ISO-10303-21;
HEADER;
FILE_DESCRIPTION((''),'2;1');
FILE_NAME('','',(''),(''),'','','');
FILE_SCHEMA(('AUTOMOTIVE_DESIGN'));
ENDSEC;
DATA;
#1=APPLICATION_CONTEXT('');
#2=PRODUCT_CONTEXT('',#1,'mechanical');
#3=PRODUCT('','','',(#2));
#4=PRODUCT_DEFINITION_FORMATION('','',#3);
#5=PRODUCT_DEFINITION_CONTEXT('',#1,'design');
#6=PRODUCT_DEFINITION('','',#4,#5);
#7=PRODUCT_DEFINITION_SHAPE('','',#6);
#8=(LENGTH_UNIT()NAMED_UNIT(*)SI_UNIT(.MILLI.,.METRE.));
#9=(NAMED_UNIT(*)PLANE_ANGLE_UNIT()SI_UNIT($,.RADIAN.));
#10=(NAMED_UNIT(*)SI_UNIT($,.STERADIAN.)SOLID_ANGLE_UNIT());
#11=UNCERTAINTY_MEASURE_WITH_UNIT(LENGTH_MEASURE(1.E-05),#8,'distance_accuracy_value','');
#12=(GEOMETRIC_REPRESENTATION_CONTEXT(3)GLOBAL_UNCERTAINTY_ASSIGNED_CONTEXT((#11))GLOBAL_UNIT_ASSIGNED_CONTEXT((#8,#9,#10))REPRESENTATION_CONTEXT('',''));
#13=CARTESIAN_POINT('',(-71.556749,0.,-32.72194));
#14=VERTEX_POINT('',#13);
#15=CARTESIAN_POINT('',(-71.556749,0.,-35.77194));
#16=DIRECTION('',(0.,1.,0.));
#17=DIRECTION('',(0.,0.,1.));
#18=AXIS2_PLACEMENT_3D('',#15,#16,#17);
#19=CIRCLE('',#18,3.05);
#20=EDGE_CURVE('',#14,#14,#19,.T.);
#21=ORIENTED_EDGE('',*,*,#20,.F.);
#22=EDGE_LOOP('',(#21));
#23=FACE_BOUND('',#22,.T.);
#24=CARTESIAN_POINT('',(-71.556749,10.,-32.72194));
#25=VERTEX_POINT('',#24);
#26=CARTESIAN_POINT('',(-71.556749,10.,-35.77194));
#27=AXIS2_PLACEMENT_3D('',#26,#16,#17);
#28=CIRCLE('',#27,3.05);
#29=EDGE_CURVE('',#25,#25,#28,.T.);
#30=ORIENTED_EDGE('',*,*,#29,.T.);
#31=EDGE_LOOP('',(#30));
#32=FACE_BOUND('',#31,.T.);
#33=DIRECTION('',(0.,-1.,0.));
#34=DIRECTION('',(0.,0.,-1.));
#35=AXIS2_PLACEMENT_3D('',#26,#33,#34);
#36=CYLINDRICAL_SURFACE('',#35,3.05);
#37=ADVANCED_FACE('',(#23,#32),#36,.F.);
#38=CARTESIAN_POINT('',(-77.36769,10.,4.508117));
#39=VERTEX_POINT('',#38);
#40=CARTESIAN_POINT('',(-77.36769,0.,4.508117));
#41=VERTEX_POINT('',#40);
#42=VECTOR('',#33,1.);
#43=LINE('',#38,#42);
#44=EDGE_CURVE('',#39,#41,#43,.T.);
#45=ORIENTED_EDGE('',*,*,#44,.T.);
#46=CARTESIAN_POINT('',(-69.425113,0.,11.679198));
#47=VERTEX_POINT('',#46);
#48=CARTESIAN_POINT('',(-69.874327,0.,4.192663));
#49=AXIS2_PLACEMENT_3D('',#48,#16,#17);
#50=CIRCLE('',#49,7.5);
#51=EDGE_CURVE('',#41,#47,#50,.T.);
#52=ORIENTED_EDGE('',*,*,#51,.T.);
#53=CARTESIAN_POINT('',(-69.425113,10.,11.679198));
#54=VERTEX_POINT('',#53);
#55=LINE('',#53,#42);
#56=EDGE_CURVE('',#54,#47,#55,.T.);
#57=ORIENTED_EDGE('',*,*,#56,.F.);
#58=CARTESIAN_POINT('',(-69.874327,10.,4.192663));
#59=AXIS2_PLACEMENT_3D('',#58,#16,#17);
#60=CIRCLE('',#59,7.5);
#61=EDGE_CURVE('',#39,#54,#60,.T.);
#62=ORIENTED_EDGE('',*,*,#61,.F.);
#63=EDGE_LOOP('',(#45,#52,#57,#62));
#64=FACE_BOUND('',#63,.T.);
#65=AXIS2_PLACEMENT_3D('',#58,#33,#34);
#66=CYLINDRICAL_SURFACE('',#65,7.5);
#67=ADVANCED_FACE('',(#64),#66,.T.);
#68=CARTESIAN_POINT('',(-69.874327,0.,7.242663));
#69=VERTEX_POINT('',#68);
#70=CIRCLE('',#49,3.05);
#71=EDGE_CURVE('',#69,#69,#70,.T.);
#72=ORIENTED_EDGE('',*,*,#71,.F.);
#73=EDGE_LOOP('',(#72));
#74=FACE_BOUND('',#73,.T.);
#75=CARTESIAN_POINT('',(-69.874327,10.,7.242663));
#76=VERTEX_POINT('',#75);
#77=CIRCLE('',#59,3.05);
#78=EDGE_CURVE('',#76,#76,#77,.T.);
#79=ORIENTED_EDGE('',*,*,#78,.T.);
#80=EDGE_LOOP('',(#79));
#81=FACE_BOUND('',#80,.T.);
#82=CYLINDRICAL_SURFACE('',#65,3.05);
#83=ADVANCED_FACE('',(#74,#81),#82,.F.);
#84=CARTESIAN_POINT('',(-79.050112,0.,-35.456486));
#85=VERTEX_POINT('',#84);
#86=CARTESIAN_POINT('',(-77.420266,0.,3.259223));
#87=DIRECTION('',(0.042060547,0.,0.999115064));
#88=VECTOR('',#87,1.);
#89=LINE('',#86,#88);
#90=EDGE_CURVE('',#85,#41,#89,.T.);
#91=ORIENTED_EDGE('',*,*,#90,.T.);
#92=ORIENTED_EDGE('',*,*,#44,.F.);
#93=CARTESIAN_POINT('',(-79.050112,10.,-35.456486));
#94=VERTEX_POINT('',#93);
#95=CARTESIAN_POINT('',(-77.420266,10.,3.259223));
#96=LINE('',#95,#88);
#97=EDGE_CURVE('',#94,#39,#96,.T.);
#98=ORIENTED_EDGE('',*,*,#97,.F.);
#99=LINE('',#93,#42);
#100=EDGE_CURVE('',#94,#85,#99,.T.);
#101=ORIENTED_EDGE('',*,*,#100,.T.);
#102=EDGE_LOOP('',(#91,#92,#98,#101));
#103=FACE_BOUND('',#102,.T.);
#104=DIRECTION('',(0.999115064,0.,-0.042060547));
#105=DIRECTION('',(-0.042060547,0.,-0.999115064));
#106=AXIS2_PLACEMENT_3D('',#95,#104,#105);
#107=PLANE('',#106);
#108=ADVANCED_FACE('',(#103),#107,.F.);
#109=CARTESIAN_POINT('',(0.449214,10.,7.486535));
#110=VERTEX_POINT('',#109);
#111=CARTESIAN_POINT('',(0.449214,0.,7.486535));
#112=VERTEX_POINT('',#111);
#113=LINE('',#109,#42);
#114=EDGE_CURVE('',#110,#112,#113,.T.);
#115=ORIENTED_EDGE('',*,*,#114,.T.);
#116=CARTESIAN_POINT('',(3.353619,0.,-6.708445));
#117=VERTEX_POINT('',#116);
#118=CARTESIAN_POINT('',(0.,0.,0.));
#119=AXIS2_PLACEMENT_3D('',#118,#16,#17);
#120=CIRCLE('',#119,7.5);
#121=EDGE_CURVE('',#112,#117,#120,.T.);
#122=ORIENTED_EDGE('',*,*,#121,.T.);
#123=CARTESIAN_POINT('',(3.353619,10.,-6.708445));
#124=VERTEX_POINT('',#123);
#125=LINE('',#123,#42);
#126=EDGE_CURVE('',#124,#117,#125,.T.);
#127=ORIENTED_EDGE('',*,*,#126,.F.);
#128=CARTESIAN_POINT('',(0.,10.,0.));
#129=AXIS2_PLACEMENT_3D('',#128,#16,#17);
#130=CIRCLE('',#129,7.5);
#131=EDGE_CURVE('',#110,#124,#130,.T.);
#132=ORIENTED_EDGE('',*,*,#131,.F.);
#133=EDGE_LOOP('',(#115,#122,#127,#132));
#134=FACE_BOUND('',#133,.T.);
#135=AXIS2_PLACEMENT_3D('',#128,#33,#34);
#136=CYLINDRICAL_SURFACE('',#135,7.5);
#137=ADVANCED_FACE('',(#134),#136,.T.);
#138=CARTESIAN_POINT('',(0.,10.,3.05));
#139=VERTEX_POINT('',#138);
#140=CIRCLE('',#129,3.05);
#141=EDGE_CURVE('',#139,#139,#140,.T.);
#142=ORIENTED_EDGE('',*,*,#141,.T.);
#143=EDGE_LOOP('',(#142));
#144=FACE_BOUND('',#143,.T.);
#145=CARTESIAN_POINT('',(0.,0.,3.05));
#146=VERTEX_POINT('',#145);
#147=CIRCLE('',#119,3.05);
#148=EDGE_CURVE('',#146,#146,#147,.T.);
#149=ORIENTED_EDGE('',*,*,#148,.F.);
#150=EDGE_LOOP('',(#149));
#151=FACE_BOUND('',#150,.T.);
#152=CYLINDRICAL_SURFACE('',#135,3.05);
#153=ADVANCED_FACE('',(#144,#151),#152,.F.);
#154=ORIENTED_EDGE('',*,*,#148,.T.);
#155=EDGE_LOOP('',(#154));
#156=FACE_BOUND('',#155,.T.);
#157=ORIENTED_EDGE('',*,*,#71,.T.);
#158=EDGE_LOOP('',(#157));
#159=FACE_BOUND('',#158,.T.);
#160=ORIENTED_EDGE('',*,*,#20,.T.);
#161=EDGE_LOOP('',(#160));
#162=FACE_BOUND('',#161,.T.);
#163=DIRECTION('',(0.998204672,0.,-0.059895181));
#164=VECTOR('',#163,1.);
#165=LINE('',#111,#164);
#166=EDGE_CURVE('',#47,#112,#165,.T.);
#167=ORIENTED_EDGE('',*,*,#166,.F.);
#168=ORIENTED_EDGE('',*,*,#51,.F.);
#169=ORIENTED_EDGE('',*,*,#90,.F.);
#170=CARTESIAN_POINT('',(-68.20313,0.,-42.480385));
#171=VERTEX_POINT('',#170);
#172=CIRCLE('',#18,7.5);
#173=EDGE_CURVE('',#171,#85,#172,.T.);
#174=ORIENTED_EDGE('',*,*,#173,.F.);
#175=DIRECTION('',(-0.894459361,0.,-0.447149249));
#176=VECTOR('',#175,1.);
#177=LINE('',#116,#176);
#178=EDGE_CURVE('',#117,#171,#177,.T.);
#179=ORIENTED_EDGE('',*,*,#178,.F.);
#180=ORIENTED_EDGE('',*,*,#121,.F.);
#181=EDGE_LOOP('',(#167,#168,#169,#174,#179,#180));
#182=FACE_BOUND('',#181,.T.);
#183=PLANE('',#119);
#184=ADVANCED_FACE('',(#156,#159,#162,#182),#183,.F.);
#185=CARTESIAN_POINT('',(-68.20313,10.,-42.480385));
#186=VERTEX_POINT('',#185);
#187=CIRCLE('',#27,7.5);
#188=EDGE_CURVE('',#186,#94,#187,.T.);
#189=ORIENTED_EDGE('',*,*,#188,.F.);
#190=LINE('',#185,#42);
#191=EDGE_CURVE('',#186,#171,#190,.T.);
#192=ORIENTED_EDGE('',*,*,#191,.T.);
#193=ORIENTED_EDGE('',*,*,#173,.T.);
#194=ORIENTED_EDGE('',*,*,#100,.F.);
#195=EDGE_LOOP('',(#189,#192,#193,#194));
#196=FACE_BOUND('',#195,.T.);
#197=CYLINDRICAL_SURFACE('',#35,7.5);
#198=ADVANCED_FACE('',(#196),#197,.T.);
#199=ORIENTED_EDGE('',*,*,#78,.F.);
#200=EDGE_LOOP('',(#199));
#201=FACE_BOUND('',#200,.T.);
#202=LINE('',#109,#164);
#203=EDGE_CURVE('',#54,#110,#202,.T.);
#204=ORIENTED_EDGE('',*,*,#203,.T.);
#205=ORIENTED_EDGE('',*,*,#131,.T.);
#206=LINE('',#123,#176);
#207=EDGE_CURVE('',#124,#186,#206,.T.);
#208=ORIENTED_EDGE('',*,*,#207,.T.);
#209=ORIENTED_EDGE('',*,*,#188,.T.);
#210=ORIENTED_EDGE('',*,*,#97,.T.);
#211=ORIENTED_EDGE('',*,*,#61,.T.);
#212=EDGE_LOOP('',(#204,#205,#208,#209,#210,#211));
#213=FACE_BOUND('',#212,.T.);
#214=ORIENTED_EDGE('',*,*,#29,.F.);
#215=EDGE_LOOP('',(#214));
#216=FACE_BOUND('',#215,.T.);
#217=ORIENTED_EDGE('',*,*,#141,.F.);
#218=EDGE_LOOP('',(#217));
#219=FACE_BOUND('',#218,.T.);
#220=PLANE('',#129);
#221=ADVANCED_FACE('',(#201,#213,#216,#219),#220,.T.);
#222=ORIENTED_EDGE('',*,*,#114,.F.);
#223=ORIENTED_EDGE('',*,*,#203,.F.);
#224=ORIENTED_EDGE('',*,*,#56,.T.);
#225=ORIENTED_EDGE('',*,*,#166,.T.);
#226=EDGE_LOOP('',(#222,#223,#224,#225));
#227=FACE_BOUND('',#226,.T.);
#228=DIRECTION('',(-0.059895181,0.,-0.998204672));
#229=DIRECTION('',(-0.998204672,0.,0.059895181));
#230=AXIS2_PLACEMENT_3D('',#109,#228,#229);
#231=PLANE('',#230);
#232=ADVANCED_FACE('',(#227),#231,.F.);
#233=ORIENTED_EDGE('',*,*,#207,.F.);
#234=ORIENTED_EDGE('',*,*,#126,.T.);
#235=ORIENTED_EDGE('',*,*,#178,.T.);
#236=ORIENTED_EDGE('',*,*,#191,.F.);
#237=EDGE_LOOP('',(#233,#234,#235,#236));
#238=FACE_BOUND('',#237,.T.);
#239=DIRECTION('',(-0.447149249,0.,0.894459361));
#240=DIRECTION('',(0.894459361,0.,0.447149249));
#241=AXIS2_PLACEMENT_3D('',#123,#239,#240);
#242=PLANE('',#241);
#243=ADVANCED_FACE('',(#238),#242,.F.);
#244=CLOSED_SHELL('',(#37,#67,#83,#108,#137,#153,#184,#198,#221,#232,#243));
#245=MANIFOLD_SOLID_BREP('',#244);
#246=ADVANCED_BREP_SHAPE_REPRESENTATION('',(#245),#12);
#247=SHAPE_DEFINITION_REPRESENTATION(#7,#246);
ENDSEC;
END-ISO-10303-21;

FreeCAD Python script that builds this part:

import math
import FreeCAD as App
import Part
import Sketcher

V = App.Vector

doc = App.newDocument("Part")
body = doc.addObject("PartDesign::Body", "Body")

# Sketch on XZ plane
sketch1 = body.newObject("Sketcher::SketchObject", "Sketch")
sketch1.AttachmentSupport = (doc.getObject("XZ_Plane"), [""])
sketch1.MapMode = "FlatFace"
sketch1.addGeometry(Part.LineSegment(V(3.4, -6.7, 0), V(-68.2, -42.5, 0)), False)
sketch1.addGeometry(Part.ArcOfCircle(Part.Circle(V(-71.6, -35.8, 0), V(0, 0, 1), 7.5), math.radians(178), math.radians(297)), False)
sketch1.addGeometry(Part.LineSegment(V(-79.1, -35.5, 0), V(-77.4, 4.5, 0)), False)
sketch1.addGeometry(Part.ArcOfCircle(Part.Circle(V(-69.9, 4.2, 0), V(0, 0, 1), 7.5), math.radians(87), math.radians(178)), False)
sketch1.addGeometry(Part.LineSegment(V(-69.4, 11.7, 0), V(0.4, 7.5, 0)), False)
sketch1.addGeometry(Part.ArcOfCircle(Part.Circle(V(0, 0, 0), V(0, 0, 1), 7.5), math.radians(-63), math.radians(87)), False)
sketch1.addGeometry(Part.Circle(V(-69.9, 4.2, 0), V(0, 0, 1), 3), False)
sketch1.addGeometry(Part.Circle(V(0, 0, 0), V(0, 0, 1), 3), False)
sketch1.addGeometry(Part.Circle(V(-71.6, -35.8, 0), V(0, 0, 1), 3), False)
sketch1.addConstraint(Sketcher.Constraint("Tangent", 0, 2, 1, 2))
sketch1.addConstraint(Sketcher.Constraint("Tangent", 1, 1, 2, 1))
sketch1.addConstraint(Sketcher.Constraint("Tangent", 2, 2, 3, 2))
sketch1.addConstraint(Sketcher.Constraint("Tangent", 3, 1, 4, 1))
sketch1.addConstraint(Sketcher.Constraint("Tangent", 4, 2, 5, 2))
sketch1.addConstraint(Sketcher.Constraint("Tangent", 5, 1, 0, 1))
sketch1.addConstraint(Sketcher.Constraint("Coincident", 5, 3, -1, 1))
sketch1.addConstraint(Sketcher.Constraint("Coincident", 7, 3, -1, 1))
sketch1.addConstraint(Sketcher.Constraint("Coincident", 6, 3, 3, 3))
sketch1.addConstraint(Sketcher.Constraint("Coincident", 8, 3, 1, 3))
sketch1.addConstraint(Sketcher.Constraint("Equal", 1, 3))
sketch1.addConstraint(Sketcher.Constraint("Equal", 3, 5))
sketch1.addConstraint(Sketcher.Constraint("Equal", 6, 7))
sketch1.addConstraint(Sketcher.Constraint("Equal", 7, 8))
sketch1.addConstraint(Sketcher.Constraint("Diameter", 6, 6.1))
sketch1.addConstraint(Sketcher.Constraint("Radius", 1, 7.5))
sketch1.addConstraint(Sketcher.Constraint("Distance", 0, 80.0))
sketch1.addConstraint(Sketcher.Constraint("Distance", 2, 40.0))
sketch1.addConstraint(Sketcher.Constraint("Distance", 4, 70.0))
sketch1.addConstraint(Sketcher.Constraint("DistanceY", 0, 2, 1, 1, 7.023899))
pad1 = body.newObject("PartDesign::Pad", "Pad")
pad1.Profile = sketch1
pad1.Length = 10
pad1.Reversed = True

doc.recompute()
